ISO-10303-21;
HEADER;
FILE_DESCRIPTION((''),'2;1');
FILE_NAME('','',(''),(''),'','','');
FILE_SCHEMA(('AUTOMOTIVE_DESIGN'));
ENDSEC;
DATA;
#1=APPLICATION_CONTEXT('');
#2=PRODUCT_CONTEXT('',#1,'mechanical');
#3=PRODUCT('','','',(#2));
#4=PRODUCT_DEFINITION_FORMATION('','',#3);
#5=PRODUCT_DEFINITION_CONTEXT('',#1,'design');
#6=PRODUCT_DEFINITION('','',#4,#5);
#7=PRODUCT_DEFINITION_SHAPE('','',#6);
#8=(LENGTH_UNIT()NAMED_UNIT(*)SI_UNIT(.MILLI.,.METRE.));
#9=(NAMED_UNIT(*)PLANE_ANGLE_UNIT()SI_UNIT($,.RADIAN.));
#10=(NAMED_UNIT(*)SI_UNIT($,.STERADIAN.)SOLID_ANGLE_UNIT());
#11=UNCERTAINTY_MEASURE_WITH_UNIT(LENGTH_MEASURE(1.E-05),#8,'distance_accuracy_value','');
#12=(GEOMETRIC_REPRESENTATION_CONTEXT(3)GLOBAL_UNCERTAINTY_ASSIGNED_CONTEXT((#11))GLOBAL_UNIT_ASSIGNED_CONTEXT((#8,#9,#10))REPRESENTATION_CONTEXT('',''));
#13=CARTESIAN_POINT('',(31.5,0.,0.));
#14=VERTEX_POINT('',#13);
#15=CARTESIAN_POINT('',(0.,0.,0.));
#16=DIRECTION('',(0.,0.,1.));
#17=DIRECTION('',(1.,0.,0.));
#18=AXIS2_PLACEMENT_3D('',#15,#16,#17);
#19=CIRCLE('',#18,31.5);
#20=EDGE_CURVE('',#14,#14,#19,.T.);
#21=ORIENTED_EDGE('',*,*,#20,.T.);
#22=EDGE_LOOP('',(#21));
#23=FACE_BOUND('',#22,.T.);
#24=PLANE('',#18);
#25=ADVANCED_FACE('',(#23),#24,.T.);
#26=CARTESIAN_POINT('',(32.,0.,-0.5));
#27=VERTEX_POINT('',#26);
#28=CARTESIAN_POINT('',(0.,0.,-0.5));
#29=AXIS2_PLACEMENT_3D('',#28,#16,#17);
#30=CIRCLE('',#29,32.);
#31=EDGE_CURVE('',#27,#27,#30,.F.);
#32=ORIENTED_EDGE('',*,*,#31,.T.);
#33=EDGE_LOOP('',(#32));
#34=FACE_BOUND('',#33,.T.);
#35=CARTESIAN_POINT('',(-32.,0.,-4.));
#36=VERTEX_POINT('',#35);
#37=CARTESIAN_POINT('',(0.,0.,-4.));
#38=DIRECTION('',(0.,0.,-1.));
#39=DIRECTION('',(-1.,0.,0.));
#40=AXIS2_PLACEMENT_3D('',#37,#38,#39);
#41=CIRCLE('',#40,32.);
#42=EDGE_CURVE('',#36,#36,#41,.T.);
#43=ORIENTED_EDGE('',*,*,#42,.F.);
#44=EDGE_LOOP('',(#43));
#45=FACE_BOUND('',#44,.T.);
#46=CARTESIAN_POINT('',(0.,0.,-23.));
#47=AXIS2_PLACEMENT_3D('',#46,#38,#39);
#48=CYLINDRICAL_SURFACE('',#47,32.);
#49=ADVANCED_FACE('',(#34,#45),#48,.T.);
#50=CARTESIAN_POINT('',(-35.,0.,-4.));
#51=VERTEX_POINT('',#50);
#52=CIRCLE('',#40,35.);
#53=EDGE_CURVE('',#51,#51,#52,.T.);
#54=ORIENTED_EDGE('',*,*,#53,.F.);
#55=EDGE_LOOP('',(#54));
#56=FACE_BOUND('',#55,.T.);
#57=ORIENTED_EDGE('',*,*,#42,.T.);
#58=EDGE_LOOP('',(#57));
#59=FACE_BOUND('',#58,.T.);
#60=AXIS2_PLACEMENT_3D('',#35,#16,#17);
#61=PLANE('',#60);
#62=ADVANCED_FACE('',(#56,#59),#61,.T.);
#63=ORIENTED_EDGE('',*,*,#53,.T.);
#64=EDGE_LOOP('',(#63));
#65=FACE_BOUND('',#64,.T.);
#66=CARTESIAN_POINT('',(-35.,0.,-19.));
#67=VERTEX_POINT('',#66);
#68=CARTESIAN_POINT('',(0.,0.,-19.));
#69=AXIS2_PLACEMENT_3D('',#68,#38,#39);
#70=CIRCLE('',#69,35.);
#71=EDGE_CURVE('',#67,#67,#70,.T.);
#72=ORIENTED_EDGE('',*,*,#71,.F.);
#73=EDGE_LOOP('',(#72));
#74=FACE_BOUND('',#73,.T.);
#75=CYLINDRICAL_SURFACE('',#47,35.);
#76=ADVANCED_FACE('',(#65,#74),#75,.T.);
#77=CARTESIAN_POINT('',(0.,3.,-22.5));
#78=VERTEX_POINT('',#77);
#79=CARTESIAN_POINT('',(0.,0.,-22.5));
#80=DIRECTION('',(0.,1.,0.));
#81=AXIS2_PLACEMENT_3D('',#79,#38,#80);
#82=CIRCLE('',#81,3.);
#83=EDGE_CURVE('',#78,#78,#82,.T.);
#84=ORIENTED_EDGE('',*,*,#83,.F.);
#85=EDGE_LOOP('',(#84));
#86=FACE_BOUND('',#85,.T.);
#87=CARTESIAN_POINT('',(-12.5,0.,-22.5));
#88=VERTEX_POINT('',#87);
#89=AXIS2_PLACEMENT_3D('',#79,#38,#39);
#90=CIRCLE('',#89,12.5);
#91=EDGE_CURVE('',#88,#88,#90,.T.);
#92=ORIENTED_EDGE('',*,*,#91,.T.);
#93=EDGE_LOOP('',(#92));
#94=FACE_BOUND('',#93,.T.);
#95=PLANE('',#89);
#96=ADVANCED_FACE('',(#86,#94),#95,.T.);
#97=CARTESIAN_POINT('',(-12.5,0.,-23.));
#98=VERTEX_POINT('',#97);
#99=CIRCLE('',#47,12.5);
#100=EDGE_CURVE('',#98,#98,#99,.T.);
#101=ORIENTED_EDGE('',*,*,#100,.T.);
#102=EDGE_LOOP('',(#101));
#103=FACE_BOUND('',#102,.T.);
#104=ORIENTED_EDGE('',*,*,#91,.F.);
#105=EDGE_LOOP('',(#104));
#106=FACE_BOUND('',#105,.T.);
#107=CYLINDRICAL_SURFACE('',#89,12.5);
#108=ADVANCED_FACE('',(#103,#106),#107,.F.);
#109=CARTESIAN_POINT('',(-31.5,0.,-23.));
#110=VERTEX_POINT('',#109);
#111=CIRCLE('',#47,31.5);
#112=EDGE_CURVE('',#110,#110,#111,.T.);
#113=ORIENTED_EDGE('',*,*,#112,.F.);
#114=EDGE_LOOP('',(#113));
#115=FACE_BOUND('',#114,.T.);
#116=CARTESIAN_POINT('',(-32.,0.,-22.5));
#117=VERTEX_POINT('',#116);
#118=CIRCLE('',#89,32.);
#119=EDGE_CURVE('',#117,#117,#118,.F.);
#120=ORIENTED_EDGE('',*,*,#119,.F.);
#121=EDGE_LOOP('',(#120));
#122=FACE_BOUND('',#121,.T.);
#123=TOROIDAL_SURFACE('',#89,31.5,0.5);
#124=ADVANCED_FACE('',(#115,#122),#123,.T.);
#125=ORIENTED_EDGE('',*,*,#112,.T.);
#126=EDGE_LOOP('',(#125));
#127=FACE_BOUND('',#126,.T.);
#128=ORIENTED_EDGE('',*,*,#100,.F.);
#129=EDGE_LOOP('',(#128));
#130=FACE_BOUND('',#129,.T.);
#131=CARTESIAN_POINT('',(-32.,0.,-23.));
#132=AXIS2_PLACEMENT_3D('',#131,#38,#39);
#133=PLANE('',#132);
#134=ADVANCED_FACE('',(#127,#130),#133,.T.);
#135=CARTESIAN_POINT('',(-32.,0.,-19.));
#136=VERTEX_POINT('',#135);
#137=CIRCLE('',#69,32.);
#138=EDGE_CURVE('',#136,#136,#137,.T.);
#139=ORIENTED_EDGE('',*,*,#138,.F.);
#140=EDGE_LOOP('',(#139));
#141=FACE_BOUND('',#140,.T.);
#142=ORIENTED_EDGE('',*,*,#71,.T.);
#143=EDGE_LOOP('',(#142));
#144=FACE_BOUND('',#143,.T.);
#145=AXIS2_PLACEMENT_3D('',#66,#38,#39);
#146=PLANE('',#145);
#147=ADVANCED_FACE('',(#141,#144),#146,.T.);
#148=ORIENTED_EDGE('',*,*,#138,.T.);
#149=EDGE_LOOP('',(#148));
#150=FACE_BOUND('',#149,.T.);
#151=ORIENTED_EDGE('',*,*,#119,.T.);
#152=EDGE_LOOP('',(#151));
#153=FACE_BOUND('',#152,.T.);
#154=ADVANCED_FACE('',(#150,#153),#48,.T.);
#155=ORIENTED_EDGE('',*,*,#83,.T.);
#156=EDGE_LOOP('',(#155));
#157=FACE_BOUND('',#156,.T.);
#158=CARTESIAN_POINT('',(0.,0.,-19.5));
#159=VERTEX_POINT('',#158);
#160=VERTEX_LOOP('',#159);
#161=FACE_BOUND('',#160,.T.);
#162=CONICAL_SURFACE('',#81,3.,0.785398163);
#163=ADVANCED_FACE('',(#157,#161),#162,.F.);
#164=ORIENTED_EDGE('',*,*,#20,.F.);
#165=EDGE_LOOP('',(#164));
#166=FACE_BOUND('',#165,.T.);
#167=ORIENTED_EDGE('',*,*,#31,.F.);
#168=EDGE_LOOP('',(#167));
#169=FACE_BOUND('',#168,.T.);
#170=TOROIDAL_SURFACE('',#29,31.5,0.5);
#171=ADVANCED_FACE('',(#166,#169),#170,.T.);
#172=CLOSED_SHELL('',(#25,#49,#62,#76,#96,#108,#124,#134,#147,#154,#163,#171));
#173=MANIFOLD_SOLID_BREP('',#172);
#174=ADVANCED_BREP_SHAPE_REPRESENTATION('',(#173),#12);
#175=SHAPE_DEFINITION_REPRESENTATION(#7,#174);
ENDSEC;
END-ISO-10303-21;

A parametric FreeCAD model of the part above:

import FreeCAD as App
import Part
import Sketcher
from FreeCAD import Vector


def edges_at(feature, points):
    """Names of the edges that pass closest to the given points."""
    edges = feature.Shape.Edges
    near = lambda p: min(range(len(edges)), key=lambda i: edges[i].distToShape(Part.Vertex(*p))[0])
    return sorted({f"Edge{near(p) + 1}" for p in points})

doc = App.newDocument("Part")
params = doc.addObject("Spreadsheet::Sheet", "Params")
for row, (alias, value) in enumerate([
    ("sketch1_width", "32 mm"),
    ("sketch1_width2", "3 mm"),
    ("sketch1_height", "23 mm"),
    ("sketch1_height2", "4 mm"),
    ("revolution_angle", "360 deg"),
    ("fillet_radius", "0.5 mm"),
    ("sketch2_diameter", "25 mm"),
    ("pocket1_length", "0.5 mm"),
    ("sketch3_width", "3 mm"),
    ("groove_angle", "360 deg"),
], start=1):
    params.set(f"A{row}", alias)
    params.set(f"B{row}", "=" + value)
    params.setAlias(f"B{row}", alias)

body = doc.addObject("PartDesign::Body", "Body")

# Sketch on XZ plane
sketch1 = body.newObject("Sketcher::SketchObject", "Sketch")
sketch1.AttachmentSupport = (doc.getObject("XZ_Plane"), [""])
sketch1.MapMode = "FlatFace"
sketch1.addGeometry([
    Part.LineSegment(Vector(-32, 0, 0), Vector(0, 0, 0)),  # 0
    Part.LineSegment(Vector(0, 0, 0), Vector(0, -23, 0)),  # 1
    Part.LineSegment(Vector(0, -23, 0), Vector(-32, -23, 0)),  # 2
    Part.LineSegment(Vector(-32, -23, 0), Vector(-32, -19, 0)),  # 3
    Part.LineSegment(Vector(-32, -19, 0), Vector(-35, -19, 0)),  # 4
    Part.LineSegment(Vector(-35, -19, 0), Vector(-35, -4, 0)),  # 5
    Part.LineSegment(Vector(-35, -4, 0), Vector(-32, -4, 0)),  # 6
    Part.LineSegment(Vector(-32, -4, 0), Vector(-32, 0, 0)),  # 7
], False)
sketch1.addConstraint([
    Sketcher.Constraint("Coincident", 0, 2, 1, 1),
    Sketcher.Constraint("Coincident", 1, 2, 2, 1),
    Sketcher.Constraint("Coincident", 2, 2, 3, 1),
    Sketcher.Constraint("Coincident", 3, 2, 4, 1),
    Sketcher.Constraint("Coincident", 4, 2, 5, 1),
    Sketcher.Constraint("Coincident", 5, 2, 6, 1),
    Sketcher.Constraint("Coincident", 6, 2, 7, 1),
    Sketcher.Constraint("Coincident", 7, 2, 0, 1),
    Sketcher.Constraint("Horizontal", 0),
    Sketcher.Constraint("Vertical", 1),
    Sketcher.Constraint("Horizontal", 2),
    Sketcher.Constraint("Vertical", 3),
    Sketcher.Constraint("Horizontal", 4),
    Sketcher.Constraint("Vertical", 5),
    Sketcher.Constraint("Horizontal", 6),
    Sketcher.Constraint("Vertical", 7),
    Sketcher.Constraint("Coincident", 0, 2, -1, 1),
    Sketcher.Constraint("Vertical", 3, 2, 6, 2),
    Sketcher.Constraint("Equal", 3, 7),
    Sketcher.Constraint("DistanceX", 0, 1, 0, 2, 32.0),
    Sketcher.Constraint("DistanceX", 4, 2, 4, 1, 3.0),
    Sketcher.Constraint("DistanceY", 1, 2, 1, 1, 23.0),
    Sketcher.Constraint("DistanceY", 3, 1, 3, 2, 4.0),
])
sketch1.setExpression("Constraints[19]", "Params.sketch1_width")
sketch1.setExpression("Constraints[20]", "Params.sketch1_width2")
sketch1.setExpression("Constraints[21]", "Params.sketch1_height")
sketch1.setExpression("Constraints[22]", "Params.sketch1_height2")
revolution = body.newObject("PartDesign::Revolution", "Revolution")
revolution.Profile = sketch1
revolution.ReferenceAxis = (sketch1, ["V_Axis"])
revolution.setExpression("Angle", "Params.revolution_angle")
doc.recompute()

fillet = body.newObject("PartDesign::Fillet", "Fillet")
fillet.Base = (revolution, edges_at(revolution, [(32, 0, -23), (32, 0, 0)]))
fillet.setExpression("Radius", "Params.fillet_radius")

# Sketch on XY plane
sketch2 = body.newObject("Sketcher::SketchObject", "Sketch001")
sketch2.AttachmentSupport = (doc.getObject("XY_Plane"), [""])
sketch2.MapMode = "FlatFace"
sketch2.AttachmentOffset = App.Placement(Vector(0, 0, -23), App.Rotation())
sketch2.addGeometry(Part.Circle(Vector(0, 0, 0), Vector(0, 0, 1), 12.5), False)
sketch2.addConstraint([
    Sketcher.Constraint("Coincident", 0, 3, -1, 1),
    Sketcher.Constraint("Diameter", 0, 25.0),
])
sketch2.setExpression("Constraints[1]", "Params.sketch2_diameter")
pocket1 = body.newObject("PartDesign::Pocket", "Pocket")
pocket1.Profile = sketch2
pocket1.setExpression("Length", "Params.pocket1_length")
pocket1.Reversed = True

# Sketch on YZ plane
sketch3 = body.newObject("Sketcher::SketchObject", "Sketch002")
sketch3.AttachmentSupport = (doc.getObject("YZ_Plane"), [""])
sketch3.MapMode = "FlatFace"
sketch3.addGeometry([
    Part.LineSegment(Vector(0, -19.5, 0), Vector(0, -22.5, 0)),
    Part.LineSegment(Vector(0, -22.5, 0), Vector(3, -22.5, 0)),
    Part.LineSegment(Vector(3, -22.5, 0), Vector(0, -19.5, 0)),
], False)
sketch3.addConstraint([
    Sketcher.Constraint("Coincident", 0, 2, 1, 1),
    Sketcher.Constraint("Coincident", 1, 2, 2, 1),
    Sketcher.Constraint("Coincident", 2, 2, 0, 1),
    Sketcher.Constraint("Vertical", 0),
    Sketcher.Constraint("Horizontal", 1),
    Sketcher.Constraint("PointOnObject", 0, 2, -2),
    Sketcher.Constraint("Equal", 1, 0),
    Sketcher.Constraint("DistanceX", 1, 1, 1, 2, 3.0),
    Sketcher.Constraint("DistanceY", 0, 2, -1, 1, 22.5),
])
sketch3.setExpression("Constraints[7]", "Params.sketch3_width")
groove = body.newObject("PartDesign::Groove", "Groove")
groove.Profile = sketch3
groove.ReferenceAxis = (sketch3, ["V_Axis"])
groove.setExpression("Angle", "Params.groove_angle")

doc.recompute()
